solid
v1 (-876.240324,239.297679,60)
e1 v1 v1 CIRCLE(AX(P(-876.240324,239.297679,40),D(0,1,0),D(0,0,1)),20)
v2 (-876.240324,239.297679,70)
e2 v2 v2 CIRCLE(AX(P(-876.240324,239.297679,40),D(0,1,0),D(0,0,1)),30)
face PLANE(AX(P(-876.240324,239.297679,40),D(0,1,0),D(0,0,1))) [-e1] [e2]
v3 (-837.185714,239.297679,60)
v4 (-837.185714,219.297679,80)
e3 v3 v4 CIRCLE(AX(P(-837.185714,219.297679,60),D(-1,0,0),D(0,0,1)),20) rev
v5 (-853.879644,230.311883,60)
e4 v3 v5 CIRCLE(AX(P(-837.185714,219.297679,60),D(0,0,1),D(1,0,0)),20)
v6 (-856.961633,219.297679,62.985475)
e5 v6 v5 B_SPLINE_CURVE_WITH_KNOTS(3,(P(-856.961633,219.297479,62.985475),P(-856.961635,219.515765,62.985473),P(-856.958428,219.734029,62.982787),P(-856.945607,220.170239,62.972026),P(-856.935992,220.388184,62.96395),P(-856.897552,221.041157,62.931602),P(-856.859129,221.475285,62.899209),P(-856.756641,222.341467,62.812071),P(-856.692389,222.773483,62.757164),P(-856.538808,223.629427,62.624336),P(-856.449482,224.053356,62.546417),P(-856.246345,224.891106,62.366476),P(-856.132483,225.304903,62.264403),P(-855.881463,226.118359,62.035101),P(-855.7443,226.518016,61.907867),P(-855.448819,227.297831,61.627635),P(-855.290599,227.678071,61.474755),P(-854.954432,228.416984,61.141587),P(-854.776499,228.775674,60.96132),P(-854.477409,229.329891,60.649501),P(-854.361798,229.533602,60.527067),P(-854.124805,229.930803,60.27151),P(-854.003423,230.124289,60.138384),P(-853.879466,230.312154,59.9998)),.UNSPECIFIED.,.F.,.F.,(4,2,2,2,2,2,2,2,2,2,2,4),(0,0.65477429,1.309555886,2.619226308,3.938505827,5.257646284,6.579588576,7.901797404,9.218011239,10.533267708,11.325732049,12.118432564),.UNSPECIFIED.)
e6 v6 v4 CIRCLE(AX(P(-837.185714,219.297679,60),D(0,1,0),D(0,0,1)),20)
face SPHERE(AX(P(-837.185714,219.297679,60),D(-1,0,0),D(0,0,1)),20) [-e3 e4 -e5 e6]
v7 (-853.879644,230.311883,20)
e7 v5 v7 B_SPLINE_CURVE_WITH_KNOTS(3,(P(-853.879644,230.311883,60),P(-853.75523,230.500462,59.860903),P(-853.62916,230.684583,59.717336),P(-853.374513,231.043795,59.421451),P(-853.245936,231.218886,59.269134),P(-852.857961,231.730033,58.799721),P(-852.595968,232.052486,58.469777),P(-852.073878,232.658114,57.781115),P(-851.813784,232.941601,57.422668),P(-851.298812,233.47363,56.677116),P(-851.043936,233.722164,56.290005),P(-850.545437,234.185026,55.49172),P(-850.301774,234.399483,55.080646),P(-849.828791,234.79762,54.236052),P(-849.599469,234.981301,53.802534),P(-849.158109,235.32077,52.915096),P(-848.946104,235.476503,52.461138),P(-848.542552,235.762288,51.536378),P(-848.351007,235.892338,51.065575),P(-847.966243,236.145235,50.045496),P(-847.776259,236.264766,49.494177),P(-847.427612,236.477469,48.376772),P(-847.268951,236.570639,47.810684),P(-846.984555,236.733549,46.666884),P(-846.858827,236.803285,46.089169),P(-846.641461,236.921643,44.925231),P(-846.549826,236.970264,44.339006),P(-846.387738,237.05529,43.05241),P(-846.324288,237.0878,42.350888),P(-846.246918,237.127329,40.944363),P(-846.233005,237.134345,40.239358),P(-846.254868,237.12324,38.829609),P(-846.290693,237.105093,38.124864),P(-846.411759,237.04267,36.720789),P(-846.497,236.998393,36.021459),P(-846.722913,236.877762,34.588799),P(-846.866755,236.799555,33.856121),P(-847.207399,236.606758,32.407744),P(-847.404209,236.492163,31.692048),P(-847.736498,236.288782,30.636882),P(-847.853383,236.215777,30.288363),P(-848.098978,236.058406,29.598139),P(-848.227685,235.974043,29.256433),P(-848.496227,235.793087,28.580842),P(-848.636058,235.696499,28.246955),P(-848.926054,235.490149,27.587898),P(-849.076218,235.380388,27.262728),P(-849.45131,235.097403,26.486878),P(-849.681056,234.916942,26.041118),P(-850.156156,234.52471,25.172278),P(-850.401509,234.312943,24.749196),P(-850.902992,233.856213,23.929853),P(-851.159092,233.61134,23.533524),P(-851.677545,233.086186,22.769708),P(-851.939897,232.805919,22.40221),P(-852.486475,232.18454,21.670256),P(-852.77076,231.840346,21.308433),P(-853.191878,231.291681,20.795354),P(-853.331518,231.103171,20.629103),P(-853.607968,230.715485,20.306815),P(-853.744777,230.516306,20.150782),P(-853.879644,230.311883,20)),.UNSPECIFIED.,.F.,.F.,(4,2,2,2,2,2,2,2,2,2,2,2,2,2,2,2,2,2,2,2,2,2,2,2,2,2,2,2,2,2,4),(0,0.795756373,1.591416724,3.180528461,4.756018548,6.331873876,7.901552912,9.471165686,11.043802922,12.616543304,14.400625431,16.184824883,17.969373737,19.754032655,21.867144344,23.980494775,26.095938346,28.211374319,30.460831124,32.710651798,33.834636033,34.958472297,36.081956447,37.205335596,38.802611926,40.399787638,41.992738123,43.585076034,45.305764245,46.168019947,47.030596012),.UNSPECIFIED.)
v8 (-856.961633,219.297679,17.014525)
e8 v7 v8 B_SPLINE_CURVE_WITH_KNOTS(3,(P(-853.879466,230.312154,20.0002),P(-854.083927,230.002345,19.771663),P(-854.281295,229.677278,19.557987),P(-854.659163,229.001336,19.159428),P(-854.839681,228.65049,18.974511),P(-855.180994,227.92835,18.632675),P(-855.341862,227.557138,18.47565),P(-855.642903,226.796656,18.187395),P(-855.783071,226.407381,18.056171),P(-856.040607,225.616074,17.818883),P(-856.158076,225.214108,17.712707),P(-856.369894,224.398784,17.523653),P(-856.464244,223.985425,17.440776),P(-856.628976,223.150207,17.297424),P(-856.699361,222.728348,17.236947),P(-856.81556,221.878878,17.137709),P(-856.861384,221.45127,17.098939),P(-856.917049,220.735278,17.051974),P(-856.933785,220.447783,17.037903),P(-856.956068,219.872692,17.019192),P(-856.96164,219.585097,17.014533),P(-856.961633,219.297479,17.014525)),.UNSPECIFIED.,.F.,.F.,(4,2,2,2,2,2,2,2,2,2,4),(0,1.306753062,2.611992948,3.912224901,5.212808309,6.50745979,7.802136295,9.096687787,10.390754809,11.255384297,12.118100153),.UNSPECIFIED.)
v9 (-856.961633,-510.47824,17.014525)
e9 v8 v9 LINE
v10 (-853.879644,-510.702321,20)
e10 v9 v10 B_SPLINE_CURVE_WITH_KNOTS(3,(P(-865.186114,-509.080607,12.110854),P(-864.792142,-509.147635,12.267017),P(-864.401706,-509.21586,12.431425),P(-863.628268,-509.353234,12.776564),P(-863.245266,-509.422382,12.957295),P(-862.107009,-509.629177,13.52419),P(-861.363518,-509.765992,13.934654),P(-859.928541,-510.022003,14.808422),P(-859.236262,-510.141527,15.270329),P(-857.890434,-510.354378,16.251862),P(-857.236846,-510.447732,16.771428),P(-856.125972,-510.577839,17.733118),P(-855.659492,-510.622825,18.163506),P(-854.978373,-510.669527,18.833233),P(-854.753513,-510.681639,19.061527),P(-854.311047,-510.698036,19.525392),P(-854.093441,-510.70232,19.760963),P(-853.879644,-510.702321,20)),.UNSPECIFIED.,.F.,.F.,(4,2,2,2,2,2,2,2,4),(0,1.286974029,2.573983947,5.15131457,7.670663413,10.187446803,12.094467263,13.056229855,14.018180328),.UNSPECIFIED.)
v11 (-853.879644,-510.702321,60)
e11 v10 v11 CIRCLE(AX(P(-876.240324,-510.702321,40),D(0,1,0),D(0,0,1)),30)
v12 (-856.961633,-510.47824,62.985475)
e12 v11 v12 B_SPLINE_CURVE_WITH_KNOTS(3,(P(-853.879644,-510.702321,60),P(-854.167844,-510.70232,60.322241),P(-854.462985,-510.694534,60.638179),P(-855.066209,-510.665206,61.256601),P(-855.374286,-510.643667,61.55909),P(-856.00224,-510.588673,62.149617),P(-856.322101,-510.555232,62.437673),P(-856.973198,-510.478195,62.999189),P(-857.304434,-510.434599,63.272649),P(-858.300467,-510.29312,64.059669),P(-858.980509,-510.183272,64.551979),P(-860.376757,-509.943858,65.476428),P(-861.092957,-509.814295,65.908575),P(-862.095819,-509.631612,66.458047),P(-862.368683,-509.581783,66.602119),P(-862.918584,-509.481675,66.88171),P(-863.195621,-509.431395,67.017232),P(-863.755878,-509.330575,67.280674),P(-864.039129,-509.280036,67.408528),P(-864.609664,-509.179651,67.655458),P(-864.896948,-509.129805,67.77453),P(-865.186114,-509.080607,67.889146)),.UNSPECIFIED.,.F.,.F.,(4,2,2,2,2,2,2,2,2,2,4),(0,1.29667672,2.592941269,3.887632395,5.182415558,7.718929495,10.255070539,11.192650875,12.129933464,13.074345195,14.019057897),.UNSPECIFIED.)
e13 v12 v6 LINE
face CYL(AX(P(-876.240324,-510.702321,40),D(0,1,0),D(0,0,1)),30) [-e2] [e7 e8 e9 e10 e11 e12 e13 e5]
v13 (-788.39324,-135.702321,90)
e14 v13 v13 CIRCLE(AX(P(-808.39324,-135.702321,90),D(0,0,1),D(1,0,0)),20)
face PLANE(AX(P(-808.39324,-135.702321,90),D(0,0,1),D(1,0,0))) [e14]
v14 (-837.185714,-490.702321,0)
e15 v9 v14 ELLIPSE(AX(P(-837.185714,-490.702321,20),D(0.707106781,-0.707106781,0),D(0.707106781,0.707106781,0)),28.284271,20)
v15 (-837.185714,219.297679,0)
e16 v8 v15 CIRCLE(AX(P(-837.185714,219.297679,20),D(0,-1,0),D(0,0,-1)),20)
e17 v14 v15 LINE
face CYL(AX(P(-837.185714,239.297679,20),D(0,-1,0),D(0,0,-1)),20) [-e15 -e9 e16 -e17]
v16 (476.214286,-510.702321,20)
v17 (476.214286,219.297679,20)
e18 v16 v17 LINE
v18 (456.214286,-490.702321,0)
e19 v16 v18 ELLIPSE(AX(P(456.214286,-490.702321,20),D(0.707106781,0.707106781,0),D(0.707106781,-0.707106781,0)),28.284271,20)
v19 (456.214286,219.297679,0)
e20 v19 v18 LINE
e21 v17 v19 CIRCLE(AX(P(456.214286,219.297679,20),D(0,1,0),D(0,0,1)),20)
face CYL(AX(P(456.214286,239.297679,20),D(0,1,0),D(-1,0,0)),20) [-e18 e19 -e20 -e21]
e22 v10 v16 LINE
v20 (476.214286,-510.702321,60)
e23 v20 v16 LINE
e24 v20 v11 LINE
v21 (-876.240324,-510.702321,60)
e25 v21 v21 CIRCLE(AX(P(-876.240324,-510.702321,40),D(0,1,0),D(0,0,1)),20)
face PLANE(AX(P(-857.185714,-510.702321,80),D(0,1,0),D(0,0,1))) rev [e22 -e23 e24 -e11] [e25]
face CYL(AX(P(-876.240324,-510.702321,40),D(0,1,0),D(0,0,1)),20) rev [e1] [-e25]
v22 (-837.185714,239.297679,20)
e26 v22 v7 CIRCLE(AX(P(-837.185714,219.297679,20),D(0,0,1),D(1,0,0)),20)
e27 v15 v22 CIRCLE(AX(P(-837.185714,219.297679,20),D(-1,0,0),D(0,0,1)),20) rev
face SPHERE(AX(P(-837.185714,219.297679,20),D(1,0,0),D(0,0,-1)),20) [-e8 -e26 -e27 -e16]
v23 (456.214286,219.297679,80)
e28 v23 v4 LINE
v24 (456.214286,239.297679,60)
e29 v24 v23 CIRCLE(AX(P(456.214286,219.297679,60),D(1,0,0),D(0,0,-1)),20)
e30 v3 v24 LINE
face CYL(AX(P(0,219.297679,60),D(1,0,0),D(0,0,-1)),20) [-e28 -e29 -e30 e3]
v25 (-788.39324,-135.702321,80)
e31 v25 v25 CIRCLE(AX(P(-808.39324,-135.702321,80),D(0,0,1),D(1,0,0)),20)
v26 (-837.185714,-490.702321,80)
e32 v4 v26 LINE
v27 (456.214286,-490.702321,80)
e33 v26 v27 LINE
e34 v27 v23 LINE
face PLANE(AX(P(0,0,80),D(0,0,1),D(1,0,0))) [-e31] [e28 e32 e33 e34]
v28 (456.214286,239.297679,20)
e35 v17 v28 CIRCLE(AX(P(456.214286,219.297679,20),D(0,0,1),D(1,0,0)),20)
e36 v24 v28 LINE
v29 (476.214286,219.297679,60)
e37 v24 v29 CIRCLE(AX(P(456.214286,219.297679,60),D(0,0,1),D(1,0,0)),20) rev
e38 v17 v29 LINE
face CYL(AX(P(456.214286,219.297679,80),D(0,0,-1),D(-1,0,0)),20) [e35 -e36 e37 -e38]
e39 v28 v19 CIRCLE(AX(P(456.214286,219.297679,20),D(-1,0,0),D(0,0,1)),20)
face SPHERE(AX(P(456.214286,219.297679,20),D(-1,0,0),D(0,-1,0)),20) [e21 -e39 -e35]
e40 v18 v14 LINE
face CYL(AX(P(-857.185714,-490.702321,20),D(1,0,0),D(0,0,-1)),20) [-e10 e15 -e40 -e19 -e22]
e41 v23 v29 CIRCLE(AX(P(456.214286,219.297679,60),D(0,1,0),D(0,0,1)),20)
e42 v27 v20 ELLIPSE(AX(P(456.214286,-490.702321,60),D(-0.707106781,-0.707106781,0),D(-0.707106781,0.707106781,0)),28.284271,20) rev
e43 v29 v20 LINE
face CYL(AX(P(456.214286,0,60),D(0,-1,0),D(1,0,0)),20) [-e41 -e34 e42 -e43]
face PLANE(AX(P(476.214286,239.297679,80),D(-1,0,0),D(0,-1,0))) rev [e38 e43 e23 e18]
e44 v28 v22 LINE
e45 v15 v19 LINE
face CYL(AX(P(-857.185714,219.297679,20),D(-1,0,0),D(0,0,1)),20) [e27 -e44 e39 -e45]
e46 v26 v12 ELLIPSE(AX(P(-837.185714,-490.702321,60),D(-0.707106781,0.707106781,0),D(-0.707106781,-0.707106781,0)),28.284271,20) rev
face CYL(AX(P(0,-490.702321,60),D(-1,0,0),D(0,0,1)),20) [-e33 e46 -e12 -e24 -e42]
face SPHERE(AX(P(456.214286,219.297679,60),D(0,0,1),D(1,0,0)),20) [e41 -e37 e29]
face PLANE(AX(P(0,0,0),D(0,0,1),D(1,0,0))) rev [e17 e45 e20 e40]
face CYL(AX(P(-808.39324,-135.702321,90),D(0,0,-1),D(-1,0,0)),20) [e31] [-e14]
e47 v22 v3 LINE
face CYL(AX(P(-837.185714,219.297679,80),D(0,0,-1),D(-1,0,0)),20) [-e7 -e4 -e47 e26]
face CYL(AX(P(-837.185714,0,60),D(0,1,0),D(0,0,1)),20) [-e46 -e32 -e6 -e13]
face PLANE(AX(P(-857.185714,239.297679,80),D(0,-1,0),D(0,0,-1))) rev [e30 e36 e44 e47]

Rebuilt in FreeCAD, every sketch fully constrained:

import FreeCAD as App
import Part
import Sketcher

V = App.Vector


def edges_at(feature, points):
    """Names of the edges that pass closest to the given points."""
    edges = feature.Shape.Edges
    near = lambda p: min(range(len(edges)), key=lambda i: edges[i].distToShape(Part.Vertex(*p))[0])
    return sorted({f"Edge{near(p) + 1}" for p in points})


def add_polygon(sketch, points):
    """Adds a closed chain of lines whose ends are joined by coincident constraints."""
    first, n = sketch.GeometryCount, len(points)
    for a, b in zip(points, points[1:] + points[:1]):
        sketch.addGeometry(Part.LineSegment(App.Vector(*a, 0), App.Vector(*b, 0)), False)
    for i in range(n):
        sketch.addConstraint(Sketcher.Constraint("Coincident", first + i, 2, first + (i + 1) % n, 1))

doc = App.newDocument("Part")
params = doc.addObject("Spreadsheet::Sheet", "Params")
for row, (alias, value) in enumerate([
    ("sketch1_height", "750 mm"),
    ("sketch1_width", "1333.4 mm"),
    ("pad1_length", "80 mm"),
    ("fillet_radius", "20 mm"),
    ("fillet2_radius", "20 mm"),
    ("sketch2_diameter", "60 mm"),
    ("sketch2_diameter2", "40 mm"),
    ("pad2_length", "750 mm"),
    ("sketch3_diameter", "40 mm"),
    ("pocket1_length", "750 mm"),
    ("sketch4_diameter", "40 mm"),
    ("pad3_length", "10 mm"),
], start=1):
    params.set(f"A{row}", alias)
    params.set(f"B{row}", "=" + value)
    params.setAlias(f"B{row}", alias)

body = doc.addObject("PartDesign::Body", "Body")

# Sketch on XY plane
sketch1 = body.newObject("Sketcher::SketchObject", "Sketch")
sketch1.AttachmentSupport = (doc.getObject("XY_Plane"), [""])
sketch1.MapMode = "FlatFace"
add_polygon(sketch1, [(-857, 239), (-857, -511), (476, -511), (476, 239)])  # lines 0-3
sketch1.addConstraint([
    Sketcher.Constraint("Vertical", 0),
    Sketcher.Constraint("Horizontal", 1),
    Sketcher.Constraint("Vertical", 2),
    Sketcher.Constraint("Horizontal", 3),
    Sketcher.Constraint("DistanceY", 0, 2, 0, 1, 750.0),
    Sketcher.Constraint("DistanceX", 1, 1, 1, 2, 1333.4),
    Sketcher.Constraint("DistanceY", 0, 2, -1, 1, 510.702321),
    Sketcher.Constraint("DistanceX", 0, 2, -1, 1, 857.185714),
])
sketch1.setExpression("Constraints[8]", "Params.sketch1_height")
sketch1.setExpression("Constraints[9]", "Params.sketch1_width")
pad1 = body.newObject("PartDesign::Pad", "Pad")
pad1.Profile = sketch1
pad1.setExpression("Length", "Params.pad1_length")
doc.recompute()

fillet = body.newObject("PartDesign::Fillet", "Fillet")
fillet.Base = (pad1, edges_at(pad1, [(-190.486, 239.298, 0)]))
fillet.setExpression("Radius", "Params.fillet_radius")
doc.recompute()

fillet2 = body.newObject("PartDesign::Fillet", "Fillet001")
fillet2.Base = (fillet, edges_at(fillet, [
    (476.214, -135.702, 80),
    (-857.186, -145.702, 0),
    (-190.486, 239.298, 80),
    (476.214, 233.44, 5.858),
    (-857.186, 233.44, 5.858),
    (-857.186, -135.702, 80),
    (476.214, -145.702, 0),
    (-190.486, -510.702, 0),
    (-857.186, 239.298, 50),
    (476.214, 239.298, 50),
    (-190.486, -510.702, 80),
]))
fillet2.setExpression("Radius", "Params.fillet2_radius")

# Sketch on XZ plane
sketch2 = body.newObject("Sketcher::SketchObject", "Sketch001")
sketch2.AttachmentSupport = (doc.getObject("XZ_Plane"), [""])
sketch2.MapMode = "FlatFace"
sketch2.AttachmentOffset = App.Placement(V(0, 0, -239.297679), App.Rotation())
sketch2.addGeometry([
    Part.Circle(V(-876, 40, 0), V(0, 0, 1), 30),
    Part.Circle(V(-876, 40, 0), V(0, 0, 1), 20),
], False)
sketch2.addConstraint([
    Sketcher.Constraint("Coincident", 1, 3, 0, 3),
    Sketcher.Constraint("Diameter", 0, 60.0),
    Sketcher.Constraint("Diameter", 1, 40.0),
    Sketcher.Constraint("DistanceY", -1, 1, 0, 3, 40.0),
    Sketcher.Constraint("DistanceX", 0, 3, -1, 1, 876.240324),
])
sketch2.setExpression("Constraints[1]", "Params.sketch2_diameter")
sketch2.setExpression("Constraints[2]", "Params.sketch2_diameter2")
pad2 = body.newObject("PartDesign::Pad", "Pad001")
pad2.Profile = sketch2
pad2.setExpression("Length", "Params.pad2_length")

# Sketch on XZ plane
sketch3 = body.newObject("Sketcher::SketchObject", "Sketch002")
sketch3.AttachmentSupport = (doc.getObject("XZ_Plane"), [""])
sketch3.MapMode = "FlatFace"
sketch3.AttachmentOffset = App.Placement(V(0, 0, -239.297679), App.Rotation())
sketch3.addGeometry(Part.Circle(V(-876, 40, 0), V(0, 0, 1), 20), False)
sketch3.addConstraint([
    Sketcher.Constraint("Diameter", 0, 40.0),
    Sketcher.Constraint("DistanceY", -1, 1, 0, 3, 40.0),
    Sketcher.Constraint("DistanceX", 0, 3, -1, 1, 876.240324),
])
sketch3.setExpression("Constraints[0]", "Params.sketch3_diameter")
pocket1 = body.newObject("PartDesign::Pocket", "Pocket")
pocket1.Profile = sketch3
pocket1.setExpression("Length", "Params.pocket1_length")
pocket1.Reversed = True

# Sketch on XY plane
sketch4 = body.newObject("Sketcher::SketchObject", "Sketch003")
sketch4.AttachmentSupport = (doc.getObject("XY_Plane"), [""])
sketch4.MapMode = "FlatFace"
sketch4.AttachmentOffset = App.Placement(V(0, 0, 80), App.Rotation())
sketch4.addGeometry(Part.Circle(V(-808, -136, 0), V(0, 0, 1), 20), False)
sketch4.addConstraint([
    Sketcher.Constraint("Diameter", 0, 40.0),
    Sketcher.Constraint("DistanceX", 0, 3, -1, 1, 808.39324),
    Sketcher.Constraint("DistanceY", 0, 3, -1, 1, 135.702321),
])
sketch4.setExpression("Constraints[0]", "Params.sketch4_diameter")
pad3 = body.newObject("PartDesign::Pad", "Pad002")
pad3.Profile = sketch4
pad3.setExpression("Length", "Params.pad3_length")

doc.recompute()
